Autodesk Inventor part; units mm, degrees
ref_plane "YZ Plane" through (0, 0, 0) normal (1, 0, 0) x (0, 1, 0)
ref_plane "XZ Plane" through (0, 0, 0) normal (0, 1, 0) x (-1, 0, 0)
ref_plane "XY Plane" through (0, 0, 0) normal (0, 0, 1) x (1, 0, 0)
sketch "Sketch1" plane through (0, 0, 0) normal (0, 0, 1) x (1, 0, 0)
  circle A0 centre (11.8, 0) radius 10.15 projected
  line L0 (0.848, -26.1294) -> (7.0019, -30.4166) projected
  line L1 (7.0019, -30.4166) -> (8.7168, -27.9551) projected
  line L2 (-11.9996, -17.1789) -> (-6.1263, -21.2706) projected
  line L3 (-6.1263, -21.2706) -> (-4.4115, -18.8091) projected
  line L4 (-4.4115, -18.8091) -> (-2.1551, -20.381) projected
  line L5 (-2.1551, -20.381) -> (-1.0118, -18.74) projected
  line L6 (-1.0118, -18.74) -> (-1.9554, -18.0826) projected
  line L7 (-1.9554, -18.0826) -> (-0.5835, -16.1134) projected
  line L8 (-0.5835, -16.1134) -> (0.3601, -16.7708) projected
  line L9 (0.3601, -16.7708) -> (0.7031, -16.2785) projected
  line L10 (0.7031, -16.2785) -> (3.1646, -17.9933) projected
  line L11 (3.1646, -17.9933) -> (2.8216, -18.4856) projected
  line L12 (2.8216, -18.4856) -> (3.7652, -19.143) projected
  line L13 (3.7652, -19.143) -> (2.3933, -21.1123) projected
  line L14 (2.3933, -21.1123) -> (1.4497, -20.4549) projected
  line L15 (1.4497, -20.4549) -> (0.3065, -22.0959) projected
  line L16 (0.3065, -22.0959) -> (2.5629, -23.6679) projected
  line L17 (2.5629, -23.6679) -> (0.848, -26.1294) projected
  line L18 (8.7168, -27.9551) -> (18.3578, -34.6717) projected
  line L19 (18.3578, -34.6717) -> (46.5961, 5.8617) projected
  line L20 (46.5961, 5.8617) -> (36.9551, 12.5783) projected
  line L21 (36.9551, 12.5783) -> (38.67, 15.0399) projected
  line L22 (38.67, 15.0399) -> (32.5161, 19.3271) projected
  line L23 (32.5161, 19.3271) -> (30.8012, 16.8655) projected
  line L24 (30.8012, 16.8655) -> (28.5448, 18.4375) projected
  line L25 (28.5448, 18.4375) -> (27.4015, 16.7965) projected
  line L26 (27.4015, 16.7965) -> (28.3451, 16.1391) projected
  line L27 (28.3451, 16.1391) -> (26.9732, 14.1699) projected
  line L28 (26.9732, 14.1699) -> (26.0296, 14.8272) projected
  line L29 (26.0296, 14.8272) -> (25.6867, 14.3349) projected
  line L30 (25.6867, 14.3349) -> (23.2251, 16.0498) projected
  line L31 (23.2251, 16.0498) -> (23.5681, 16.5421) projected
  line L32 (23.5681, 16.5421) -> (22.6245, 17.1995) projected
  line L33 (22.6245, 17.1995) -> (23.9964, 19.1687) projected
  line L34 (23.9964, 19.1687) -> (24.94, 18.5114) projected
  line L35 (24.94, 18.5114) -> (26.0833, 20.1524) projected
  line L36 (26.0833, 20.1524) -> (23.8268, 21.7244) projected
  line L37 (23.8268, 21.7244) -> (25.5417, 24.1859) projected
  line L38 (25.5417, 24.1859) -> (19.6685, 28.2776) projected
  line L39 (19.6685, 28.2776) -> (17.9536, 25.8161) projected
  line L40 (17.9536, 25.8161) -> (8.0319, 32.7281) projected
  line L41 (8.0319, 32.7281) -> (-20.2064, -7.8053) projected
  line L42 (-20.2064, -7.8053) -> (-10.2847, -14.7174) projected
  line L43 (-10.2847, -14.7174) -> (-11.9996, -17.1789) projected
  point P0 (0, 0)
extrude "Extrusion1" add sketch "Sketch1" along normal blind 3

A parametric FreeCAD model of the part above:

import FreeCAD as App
import Part
import Sketcher
Q = App.Units.Quantity

doc = App.newDocument("Part")
body = doc.addObject("PartDesign::Body", "Body")

sketch1 = body.newObject("Sketcher::SketchObject", "Sketch")
sketch1.AttachmentSupport = (doc.getObject("XY_Plane"), [""])
sketch1.MapMode = "FlatFace"
sketch1.addGeometry(Part.LineSegment(App.Vector(2.5629, -23.6679, 0), App.Vector(0.848, -26.1294, 0)), False)
sketch1.addGeometry(Part.LineSegment(App.Vector(0.848, -26.1294, 0), App.Vector(7.0019, -30.4166, 0)), False)
sketch1.addGeometry(Part.LineSegment(App.Vector(7.0019, -30.4166, 0), App.Vector(8.7168, -27.9551, 0)), False)
sketch1.addGeometry(Part.LineSegment(App.Vector(8.7168, -27.9551, 0), App.Vector(18.3578, -34.6717, 0)), False)
sketch1.addGeometry(Part.LineSegment(App.Vector(18.3578, -34.6717, 0), App.Vector(46.5961, 5.8617, 0)), False)
sketch1.addGeometry(Part.LineSegment(App.Vector(46.5961, 5.8617, 0), App.Vector(36.9551, 12.5783, 0)), False)
sketch1.addGeometry(Part.LineSegment(App.Vector(36.9551, 12.5783, 0), App.Vector(38.67, 15.0399, 0)), False)
sketch1.addGeometry(Part.LineSegment(App.Vector(38.67, 15.0399, 0), App.Vector(32.5161, 19.3271, 0)), False)
sketch1.addGeometry(Part.LineSegment(App.Vector(32.5161, 19.3271, 0), App.Vector(30.8012, 16.8655, 0)), False)
sketch1.addGeometry(Part.LineSegment(App.Vector(30.8012, 16.8655, 0), App.Vector(28.5448, 18.4375, 0)), False)
sketch1.addGeometry(Part.LineSegment(App.Vector(28.5448, 18.4375, 0), App.Vector(27.4015, 16.7965, 0)), False)
sketch1.addGeometry(Part.LineSegment(App.Vector(27.4015, 16.7965, 0), App.Vector(28.3451, 16.1391, 0)), False)
sketch1.addGeometry(Part.LineSegment(App.Vector(28.3451, 16.1391, 0), App.Vector(26.9732, 14.1699, 0)), False)
sketch1.addGeometry(Part.LineSegment(App.Vector(26.9732, 14.1699, 0), App.Vector(26.0296, 14.8272, 0)), False)
sketch1.addGeometry(Part.LineSegment(App.Vector(26.0296, 14.8272, 0), App.Vector(25.6867, 14.3349, 0)), False)
sketch1.addGeometry(Part.LineSegment(App.Vector(25.6867, 14.3349, 0), App.Vector(23.2251, 16.0498, 0)), False)
sketch1.addGeometry(Part.LineSegment(App.Vector(23.2251, 16.0498, 0), App.Vector(23.5681, 16.5421, 0)), False)
sketch1.addGeometry(Part.LineSegment(App.Vector(23.5681, 16.5421, 0), App.Vector(22.6245, 17.1995, 0)), False)
sketch1.addGeometry(Part.LineSegment(App.Vector(22.6245, 17.1995, 0), App.Vector(23.9964, 19.1687, 0)), False)
sketch1.addGeometry(Part.LineSegment(App.Vector(23.9964, 19.1687, 0), App.Vector(24.94, 18.5114, 0)), False)
sketch1.addGeometry(Part.LineSegment(App.Vector(24.94, 18.5114, 0), App.Vector(26.0833, 20.1524, 0)), False)
sketch1.addGeometry(Part.LineSegment(App.Vector(26.0833, 20.1524, 0), App.Vector(23.8268, 21.7244, 0)), False)
sketch1.addGeometry(Part.LineSegment(App.Vector(23.8268, 21.7244, 0), App.Vector(25.5417, 24.1859, 0)), False)
sketch1.addGeometry(Part.LineSegment(App.Vector(25.5417, 24.1859, 0), App.Vector(19.6685, 28.2776, 0)), False)
sketch1.addGeometry(Part.LineSegment(App.Vector(19.6685, 28.2776, 0), App.Vector(17.9536, 25.8161, 0)), False)
sketch1.addGeometry(Part.LineSegment(App.Vector(17.9536, 25.8161, 0), App.Vector(8.0319, 32.7281, 0)), False)
sketch1.addGeometry(Part.LineSegment(App.Vector(8.0319, 32.7281, 0), App.Vector(-20.2064, -7.8053, 0)), False)
sketch1.addGeometry(Part.LineSegment(App.Vector(-20.2064, -7.8053, 0), App.Vector(-10.2847, -14.7174, 0)), False)
sketch1.addGeometry(Part.LineSegment(App.Vector(-10.2847, -14.7174, 0), App.Vector(-11.9996, -17.1789, 0)), False)
sketch1.addGeometry(Part.LineSegment(App.Vector(-11.9996, -17.1789, 0), App.Vector(-6.1263, -21.2706, 0)), False)
sketch1.addGeometry(Part.LineSegment(App.Vector(-6.1263, -21.2706, 0), App.Vector(-4.4115, -18.8091, 0)), False)
sketch1.addGeometry(Part.LineSegment(App.Vector(-4.4115, -18.8091, 0), App.Vector(-2.1551, -20.381, 0)), False)
sketch1.addGeometry(Part.LineSegment(App.Vector(-2.1551, -20.381, 0), App.Vector(-1.0118, -18.74, 0)), False)
sketch1.addGeometry(Part.LineSegment(App.Vector(-1.0118, -18.74, 0), App.Vector(-1.9554, -18.0826, 0)), False)
sketch1.addGeometry(Part.LineSegment(App.Vector(-1.9554, -18.0826, 0), App.Vector(-0.5835, -16.1134, 0)), False)
sketch1.addGeometry(Part.LineSegment(App.Vector(-0.5835, -16.1134, 0), App.Vector(0.3601, -16.7708, 0)), False)
sketch1.addGeometry(Part.LineSegment(App.Vector(0.3601, -16.7708, 0), App.Vector(0.7031, -16.2785, 0)), False)
sketch1.addGeometry(Part.LineSegment(App.Vector(0.7031, -16.2785, 0), App.Vector(3.1646, -17.9933, 0)), False)
sketch1.addGeometry(Part.LineSegment(App.Vector(3.1646, -17.9933, 0), App.Vector(2.8216, -18.4856, 0)), False)
sketch1.addGeometry(Part.LineSegment(App.Vector(2.8216, -18.4856, 0), App.Vector(3.7652, -19.143, 0)), False)
sketch1.addGeometry(Part.LineSegment(App.Vector(3.7652, -19.143, 0), App.Vector(2.3933, -21.1123, 0)), False)
sketch1.addGeometry(Part.LineSegment(App.Vector(2.3933, -21.1123, 0), App.Vector(1.4497, -20.4549, 0)), False)
sketch1.addGeometry(Part.LineSegment(App.Vector(1.4497, -20.4549, 0), App.Vector(0.3065, -22.0959, 0)), False)
sketch1.addGeometry(Part.LineSegment(App.Vector(0.3065, -22.0959, 0), App.Vector(2.5629, -23.6679, 0)), False)
sketch1.addGeometry(Part.Circle(App.Vector(11.8, 0, 0), App.Vector(0, 0, 1), 10.15), False)
sketch1.addConstraint(Sketcher.Constraint("Coincident", 0, 2, 1, 1))
sketch1.addConstraint(Sketcher.Constraint("Coincident", 1, 2, 2, 1))
sketch1.addConstraint(Sketcher.Constraint("Coincident", 2, 2, 3, 1))
sketch1.addConstraint(Sketcher.Constraint("Coincident", 3, 2, 4, 1))
sketch1.addConstraint(Sketcher.Constraint("Coincident", 4, 2, 5, 1))
sketch1.addConstraint(Sketcher.Constraint("Coincident", 5, 2, 6, 1))
sketch1.addConstraint(Sketcher.Constraint("Coincident", 6, 2, 7, 1))
sketch1.addConstraint(Sketcher.Constraint("Coincident", 7, 2, 8, 1))
sketch1.addConstraint(Sketcher.Constraint("Coincident", 8, 2, 9, 1))
sketch1.addConstraint(Sketcher.Constraint("Coincident", 9, 2, 10, 1))
sketch1.addConstraint(Sketcher.Constraint("Coincident", 10, 2, 11, 1))
sketch1.addConstraint(Sketcher.Constraint("Coincident", 11, 2, 12, 1))
sketch1.addConstraint(Sketcher.Constraint("Coincident", 12, 2, 13, 1))
sketch1.addConstraint(Sketcher.Constraint("Coincident", 13, 2, 14, 1))
sketch1.addConstraint(Sketcher.Constraint("Coincident", 14, 2, 15, 1))
sketch1.addConstraint(Sketcher.Constraint("Coincident", 15, 2, 16, 1))
sketch1.addConstraint(Sketcher.Constraint("Coincident", 16, 2, 17, 1))
sketch1.addConstraint(Sketcher.Constraint("Coincident", 17, 2, 18, 1))
sketch1.addConstraint(Sketcher.Constraint("Coincident", 18, 2, 19, 1))
sketch1.addConstraint(Sketcher.Constraint("Coincident", 19, 2, 20, 1))
sketch1.addConstraint(Sketcher.Constraint("Coincident", 20, 2, 21, 1))
sketch1.addConstraint(Sketcher.Constraint("Coincident", 21, 2, 22, 1))
sketch1.addConstraint(Sketcher.Constraint("Coincident", 22, 2, 23, 1))
sketch1.addConstraint(Sketcher.Constraint("Coincident", 23, 2, 24, 1))
sketch1.addConstraint(Sketcher.Constraint("Coincident", 24, 2, 25, 1))
sketch1.addConstraint(Sketcher.Constraint("Coincident", 25, 2, 26, 1))
sketch1.addConstraint(Sketcher.Constraint("Coincident", 26, 2, 27, 1))
sketch1.addConstraint(Sketcher.Constraint("Coincident", 27, 2, 28, 1))
sketch1.addConstraint(Sketcher.Constraint("Coincident", 28, 2, 29, 1))
sketch1.addConstraint(Sketcher.Constraint("Coincident", 29, 2, 30, 1))
sketch1.addConstraint(Sketcher.Constraint("Coincident", 30, 2, 31, 1))
sketch1.addConstraint(Sketcher.Constraint("Coincident", 31, 2, 32, 1))
sketch1.addConstraint(Sketcher.Constraint("Coincident", 32, 2, 33, 1))
sketch1.addConstraint(Sketcher.Constraint("Coincident", 33, 2, 34, 1))
sketch1.addConstraint(Sketcher.Constraint("Coincident", 34, 2, 35, 1))
sketch1.addConstraint(Sketcher.Constraint("Coincident", 35, 2, 36, 1))
sketch1.addConstraint(Sketcher.Constraint("Coincident", 36, 2, 37, 1))
sketch1.addConstraint(Sketcher.Constraint("Coincident", 37, 2, 38, 1))
sketch1.addConstraint(Sketcher.Constraint("Coincident", 38, 2, 39, 1))
sketch1.addConstraint(Sketcher.Constraint("Coincident", 39, 2, 40, 1))
sketch1.addConstraint(Sketcher.Constraint("Coincident", 40, 2, 41, 1))
sketch1.addConstraint(Sketcher.Constraint("Coincident", 41, 2, 42, 1))
sketch1.addConstraint(Sketcher.Constraint("Coincident", 42, 2, 43, 1))
sketch1.addConstraint(Sketcher.Constraint("Coincident", 43, 2, 0, 1))
sketch1.addConstraint(Sketcher.Constraint("PointOnObject", 44, 3, -1))
sketch1.addConstraint(Sketcher.Constraint("Diameter", 44, Q("20.3 mm")))
sketch1.addConstraint(Sketcher.Constraint("Distance", 0, Q("3 mm")))
sketch1.addConstraint(Sketcher.Constraint("Distance", 2, Q("3 mm")))
sketch1.addConstraint(Sketcher.Constraint("Distance", 6, Q("3 mm")))
sketch1.addConstraint(Sketcher.Constraint("Distance", 8, Q("3 mm")))
sketch1.addConstraint(Sketcher.Constraint("Distance", 10, Q("2 mm")))
sketch1.addConstraint(Sketcher.Constraint("Distance", 15, Q("3 mm")))
sketch1.addConstraint(Sketcher.Constraint("Distance", 20, Q("2 mm")))
sketch1.addConstraint(Sketcher.Constraint("Distance", 22, Q("3 mm")))
sketch1.addConstraint(Sketcher.Constraint("Distance", 24, Q("3 mm")))
sketch1.addConstraint(Sketcher.Constraint("Distance", 28, Q("3 mm")))
sketch1.addConstraint(Sketcher.Constraint("Distance", 30, Q("3 mm")))
sketch1.addConstraint(Sketcher.Constraint("Distance", 32, Q("2 mm")))
sketch1.addConstraint(Sketcher.Constraint("Distance", 37, Q("3 mm")))
sketch1.addConstraint(Sketcher.Constraint("Distance", 42, Q("2 mm")))
sketch1.addConstraint(Sketcher.Constraint("Distance", 1, Q("7.5 mm")))
sketch1.addConstraint(Sketcher.Constraint("Distance", 4, Q("49.4 mm")))
sketch1.addConstraint(Sketcher.Constraint("Distance", 7, Q("7.5 mm")))
sketch1.addConstraint(Sketcher.Constraint("Distance", 12, Q("2.4 mm")))
sketch1.addConstraint(Sketcher.Constraint("Distance", 14, Q("0.6 mm")))
sketch1.addConstraint(Sketcher.Constraint("Distance", 16, Q("0.6 mm")))
sketch1.addConstraint(Sketcher.Constraint("Distance", 18, Q("2.4 mm")))
sketch1.addConstraint(Sketcher.Constraint("Distance", 26, Q("49.4 mm")))
sketch1.addConstraint(Sketcher.Constraint("Distance", 34, Q("2.4 mm")))
sketch1.addConstraint(Sketcher.Constraint("Distance", 36, Q("0.6 mm")))
sketch1.addConstraint(Sketcher.Constraint("Distance", 38, Q("0.6 mm")))
sketch1.addConstraint(Sketcher.Constraint("Distance", 40, Q("2.4 mm")))
sketch1.addConstraint(Sketcher.Constraint("DistanceX", -1, 1, 44, 3, Q("11.8 mm")))
sketch1.addConstraint(Sketcher.Constraint("Distance", 3, Q("11.75 mm")))
sketch1.addConstraint(Sketcher.Constraint("Distance", 5, Q("11.75 mm")))
sketch1.addConstraint(Sketcher.Constraint("Distance", 9, Q("2.75 mm")))
sketch1.addConstraint(Sketcher.Constraint("Distance", 11, Q("1.15 mm")))
sketch1.addConstraint(Sketcher.Constraint("Distance", 13, Q("1.15 mm")))
sketch1.addConstraint(Sketcher.Constraint("Distance", 17, Q("1.15 mm")))
sketch1.addConstraint(Sketcher.Constraint("Distance", 19, Q("1.15 mm")))
sketch1.addConstraint(Sketcher.Constraint("Distance", 21, Q("2.75 mm")))
sketch1.addConstraint(Sketcher.Constraint("Distance", 31, Q("2.75 mm")))
sketch1.addConstraint(Sketcher.Constraint("Distance", 33, Q("1.15 mm")))
sketch1.addConstraint(Sketcher.Constraint("Distance", 35, Q("1.15 mm")))
sketch1.addConstraint(Sketcher.Constraint("Distance", 39, Q("1.15 mm")))
sketch1.addConstraint(Sketcher.Constraint("Distance", 41, Q("1.15 mm")))
sketch1.addConstraint(Sketcher.Constraint("Distance", 43, Q("2.75 mm")))
sketch1.addConstraint(Sketcher.Constraint("DistanceX", -1, 1, 6, 2, Q("38.67 mm")))
sketch1.addConstraint(Sketcher.Constraint("DistanceY", -1, 1, 6, 2, Q("15.04 mm")))
sketch1.addConstraint(Sketcher.Constraint("DistanceY", -1, 1, 12, 2, Q("14.17 mm")))
sketch1.addConstraint(Sketcher.Constraint("DistanceX", -1, 1, 19, 2, Q("24.94 mm")))
sketch1.addConstraint(Sketcher.Constraint("DistanceY", 32, 2, -1, 1, Q("18.74 mm")))
sketch1.addConstraint(Sketcher.Constraint("DistanceX", -1, 1, 35, 2, Q("0.36 mm")))
sketch1.addConstraint(Sketcher.Constraint("DistanceY", 3, 2, 5, 2, Q("47.25 mm")))
sketch1.addConstraint(Sketcher.Constraint("DistanceX", 7, 2, 4, 2, Q("14.08 mm")))
sketch1.addConstraint(Sketcher.Constraint("DistanceX", 11, 2, 5, 2, Q("8.61 mm")))
sketch1.addConstraint(Sketcher.Constraint("DistanceY", 12, 2, 15, 2, Q("1.88 mm")))
sketch1.addConstraint(Sketcher.Constraint("DistanceX", 15, 2, 11, 2, Q("5.12 mm")))
sketch1.addConstraint(Sketcher.Constraint("DistanceY", 37, 2, 34, 2, Q("1.88 mm")))
sketch1.addConstraint(Sketcher.Constraint("DistanceX", 33, 2, 37, 2, Q("5.12 mm")))
sketch1.addConstraint(Sketcher.Constraint("Distance", 23, Q("7.158 mm")))
sketch1.addConstraint(Sketcher.Constraint("Distance", 25, Q("12.092 mm")))
sketch1.addConstraint(Sketcher.Constraint("Distance", 27, Q("12.092 mm")))
sketch1.addConstraint(Sketcher.Constraint("Distance", 29, Q("7.158 mm")))
sketch1.addConstraint(Sketcher.Constraint("DistanceX", -1, 1, 0, 2, Q("0.848 mm")))
sketch1.addConstraint(Sketcher.Constraint("DistanceX", -1, 1, 1, 2, Q("7.002 mm")))
sketch1.addConstraint(Sketcher.Constraint("DistanceY", 2, 2, -1, 1, Q("27.955 mm")))
sketch1.addConstraint(Sketcher.Constraint("DistanceX", -1, 1, 4, 2, Q("46.596 mm")))
sketch1.addConstraint(Sketcher.Constraint("DistanceX", -1, 1, 5, 2, Q("36.955 mm")))
sketch1.addConstraint(Sketcher.Constraint("DistanceY", -1, 1, 11, 2, Q("16.139 mm")))
sketch1.addConstraint(Sketcher.Constraint("DistanceY", -1, 1, 14, 2, Q("14.335 mm")))
sketch1.addConstraint(Sketcher.Constraint("DistanceX", -1, 1, 16, 2, Q("23.568 mm")))
sketch1.addConstraint(Sketcher.Constraint("DistanceY", -1, 1, 22, 2, Q("24.186 mm")))
sketch1.addConstraint(Sketcher.Constraint("DistanceY", -1, 1, 24, 2, Q("25.816 mm")))
sketch1.addConstraint(Sketcher.Constraint("DistanceX", -1, 1, 25, 2, Q("8.032 mm")))
sketch1.addConstraint(Sketcher.Constraint("DistanceY", -1, 1, 25, 2, Q("32.728 mm")))
sketch1.addConstraint(Sketcher.Constraint("DistanceY", 28, 2, -1, 1, Q("17.179 mm")))
sketch1.addConstraint(Sketcher.Constraint("DistanceY", 30, 2, -1, 1, Q("18.809 mm")))
sketch1.addConstraint(Sketcher.Constraint("DistanceX", 31, 2, -1, 1, Q("2.155 mm")))
sketch1.addConstraint(Sketcher.Constraint("DistanceY", 31, 2, -1, 1, Q("20.381 mm")))
sketch1.addConstraint(Sketcher.Constraint("DistanceX", -1, 1, 36, 2, Q("0.703 mm")))
sketch1.addConstraint(Sketcher.Constraint("DistanceY", 39, 2, -1, 1, Q("19.143 mm")))
sketch1.addConstraint(Sketcher.Constraint("DistanceY", 41, 2, -1, 1, Q("20.455 mm")))
sketch1.addConstraint(Sketcher.Constraint("DistanceY", 42, 2, -1, 1, Q("22.096 mm")))
sketch1.addConstraint(Sketcher.Constraint("DistanceX", -1, 1, 43, 2, Q("2.563 mm")))
sketch1.addConstraint(Sketcher.Constraint("DistanceX", 8, 2, 7, 2, Q("1.715 mm")))
sketch1.addConstraint(Sketcher.Constraint("DistanceY", 8, 2, 9, 2, Q("1.572 mm")))
sketch1.addConstraint(Sketcher.Constraint("DistanceX", 17, 2, 13, 2, Q("3.405 mm")))
sketch1.addConstraint(Sketcher.Constraint("DistanceX", 17, 2, 18, 2, Q("1.372 mm")))
sketch1.addConstraint(Sketcher.Constraint("DistanceY", 19, 2, 20, 2, Q("1.641 mm")))
sketch1.addConstraint(Sketcher.Constraint("DistanceY", 20, 2, 21, 2, Q("1.572 mm")))
sketch1.addConstraint(Sketcher.Constraint("DistanceY", 0, 2, 26, 2, Q("18.324 mm")))
sketch1.addConstraint(Sketcher.Constraint("DistanceY", 27, 2, 26, 2, Q("6.912 mm")))
sketch1.addConstraint(Sketcher.Constraint("DistanceX", 30, 2, 33, 2, Q("2.456 mm")))
sketch1.addConstraint(Sketcher.Constraint("DistanceX", 38, 2, 37, 2, Q("0.343 mm")))
pad1 = body.newObject("PartDesign::Pad", "Pad")
pad1.Profile = sketch1
pad1.Length = 3

doc.recompute()
